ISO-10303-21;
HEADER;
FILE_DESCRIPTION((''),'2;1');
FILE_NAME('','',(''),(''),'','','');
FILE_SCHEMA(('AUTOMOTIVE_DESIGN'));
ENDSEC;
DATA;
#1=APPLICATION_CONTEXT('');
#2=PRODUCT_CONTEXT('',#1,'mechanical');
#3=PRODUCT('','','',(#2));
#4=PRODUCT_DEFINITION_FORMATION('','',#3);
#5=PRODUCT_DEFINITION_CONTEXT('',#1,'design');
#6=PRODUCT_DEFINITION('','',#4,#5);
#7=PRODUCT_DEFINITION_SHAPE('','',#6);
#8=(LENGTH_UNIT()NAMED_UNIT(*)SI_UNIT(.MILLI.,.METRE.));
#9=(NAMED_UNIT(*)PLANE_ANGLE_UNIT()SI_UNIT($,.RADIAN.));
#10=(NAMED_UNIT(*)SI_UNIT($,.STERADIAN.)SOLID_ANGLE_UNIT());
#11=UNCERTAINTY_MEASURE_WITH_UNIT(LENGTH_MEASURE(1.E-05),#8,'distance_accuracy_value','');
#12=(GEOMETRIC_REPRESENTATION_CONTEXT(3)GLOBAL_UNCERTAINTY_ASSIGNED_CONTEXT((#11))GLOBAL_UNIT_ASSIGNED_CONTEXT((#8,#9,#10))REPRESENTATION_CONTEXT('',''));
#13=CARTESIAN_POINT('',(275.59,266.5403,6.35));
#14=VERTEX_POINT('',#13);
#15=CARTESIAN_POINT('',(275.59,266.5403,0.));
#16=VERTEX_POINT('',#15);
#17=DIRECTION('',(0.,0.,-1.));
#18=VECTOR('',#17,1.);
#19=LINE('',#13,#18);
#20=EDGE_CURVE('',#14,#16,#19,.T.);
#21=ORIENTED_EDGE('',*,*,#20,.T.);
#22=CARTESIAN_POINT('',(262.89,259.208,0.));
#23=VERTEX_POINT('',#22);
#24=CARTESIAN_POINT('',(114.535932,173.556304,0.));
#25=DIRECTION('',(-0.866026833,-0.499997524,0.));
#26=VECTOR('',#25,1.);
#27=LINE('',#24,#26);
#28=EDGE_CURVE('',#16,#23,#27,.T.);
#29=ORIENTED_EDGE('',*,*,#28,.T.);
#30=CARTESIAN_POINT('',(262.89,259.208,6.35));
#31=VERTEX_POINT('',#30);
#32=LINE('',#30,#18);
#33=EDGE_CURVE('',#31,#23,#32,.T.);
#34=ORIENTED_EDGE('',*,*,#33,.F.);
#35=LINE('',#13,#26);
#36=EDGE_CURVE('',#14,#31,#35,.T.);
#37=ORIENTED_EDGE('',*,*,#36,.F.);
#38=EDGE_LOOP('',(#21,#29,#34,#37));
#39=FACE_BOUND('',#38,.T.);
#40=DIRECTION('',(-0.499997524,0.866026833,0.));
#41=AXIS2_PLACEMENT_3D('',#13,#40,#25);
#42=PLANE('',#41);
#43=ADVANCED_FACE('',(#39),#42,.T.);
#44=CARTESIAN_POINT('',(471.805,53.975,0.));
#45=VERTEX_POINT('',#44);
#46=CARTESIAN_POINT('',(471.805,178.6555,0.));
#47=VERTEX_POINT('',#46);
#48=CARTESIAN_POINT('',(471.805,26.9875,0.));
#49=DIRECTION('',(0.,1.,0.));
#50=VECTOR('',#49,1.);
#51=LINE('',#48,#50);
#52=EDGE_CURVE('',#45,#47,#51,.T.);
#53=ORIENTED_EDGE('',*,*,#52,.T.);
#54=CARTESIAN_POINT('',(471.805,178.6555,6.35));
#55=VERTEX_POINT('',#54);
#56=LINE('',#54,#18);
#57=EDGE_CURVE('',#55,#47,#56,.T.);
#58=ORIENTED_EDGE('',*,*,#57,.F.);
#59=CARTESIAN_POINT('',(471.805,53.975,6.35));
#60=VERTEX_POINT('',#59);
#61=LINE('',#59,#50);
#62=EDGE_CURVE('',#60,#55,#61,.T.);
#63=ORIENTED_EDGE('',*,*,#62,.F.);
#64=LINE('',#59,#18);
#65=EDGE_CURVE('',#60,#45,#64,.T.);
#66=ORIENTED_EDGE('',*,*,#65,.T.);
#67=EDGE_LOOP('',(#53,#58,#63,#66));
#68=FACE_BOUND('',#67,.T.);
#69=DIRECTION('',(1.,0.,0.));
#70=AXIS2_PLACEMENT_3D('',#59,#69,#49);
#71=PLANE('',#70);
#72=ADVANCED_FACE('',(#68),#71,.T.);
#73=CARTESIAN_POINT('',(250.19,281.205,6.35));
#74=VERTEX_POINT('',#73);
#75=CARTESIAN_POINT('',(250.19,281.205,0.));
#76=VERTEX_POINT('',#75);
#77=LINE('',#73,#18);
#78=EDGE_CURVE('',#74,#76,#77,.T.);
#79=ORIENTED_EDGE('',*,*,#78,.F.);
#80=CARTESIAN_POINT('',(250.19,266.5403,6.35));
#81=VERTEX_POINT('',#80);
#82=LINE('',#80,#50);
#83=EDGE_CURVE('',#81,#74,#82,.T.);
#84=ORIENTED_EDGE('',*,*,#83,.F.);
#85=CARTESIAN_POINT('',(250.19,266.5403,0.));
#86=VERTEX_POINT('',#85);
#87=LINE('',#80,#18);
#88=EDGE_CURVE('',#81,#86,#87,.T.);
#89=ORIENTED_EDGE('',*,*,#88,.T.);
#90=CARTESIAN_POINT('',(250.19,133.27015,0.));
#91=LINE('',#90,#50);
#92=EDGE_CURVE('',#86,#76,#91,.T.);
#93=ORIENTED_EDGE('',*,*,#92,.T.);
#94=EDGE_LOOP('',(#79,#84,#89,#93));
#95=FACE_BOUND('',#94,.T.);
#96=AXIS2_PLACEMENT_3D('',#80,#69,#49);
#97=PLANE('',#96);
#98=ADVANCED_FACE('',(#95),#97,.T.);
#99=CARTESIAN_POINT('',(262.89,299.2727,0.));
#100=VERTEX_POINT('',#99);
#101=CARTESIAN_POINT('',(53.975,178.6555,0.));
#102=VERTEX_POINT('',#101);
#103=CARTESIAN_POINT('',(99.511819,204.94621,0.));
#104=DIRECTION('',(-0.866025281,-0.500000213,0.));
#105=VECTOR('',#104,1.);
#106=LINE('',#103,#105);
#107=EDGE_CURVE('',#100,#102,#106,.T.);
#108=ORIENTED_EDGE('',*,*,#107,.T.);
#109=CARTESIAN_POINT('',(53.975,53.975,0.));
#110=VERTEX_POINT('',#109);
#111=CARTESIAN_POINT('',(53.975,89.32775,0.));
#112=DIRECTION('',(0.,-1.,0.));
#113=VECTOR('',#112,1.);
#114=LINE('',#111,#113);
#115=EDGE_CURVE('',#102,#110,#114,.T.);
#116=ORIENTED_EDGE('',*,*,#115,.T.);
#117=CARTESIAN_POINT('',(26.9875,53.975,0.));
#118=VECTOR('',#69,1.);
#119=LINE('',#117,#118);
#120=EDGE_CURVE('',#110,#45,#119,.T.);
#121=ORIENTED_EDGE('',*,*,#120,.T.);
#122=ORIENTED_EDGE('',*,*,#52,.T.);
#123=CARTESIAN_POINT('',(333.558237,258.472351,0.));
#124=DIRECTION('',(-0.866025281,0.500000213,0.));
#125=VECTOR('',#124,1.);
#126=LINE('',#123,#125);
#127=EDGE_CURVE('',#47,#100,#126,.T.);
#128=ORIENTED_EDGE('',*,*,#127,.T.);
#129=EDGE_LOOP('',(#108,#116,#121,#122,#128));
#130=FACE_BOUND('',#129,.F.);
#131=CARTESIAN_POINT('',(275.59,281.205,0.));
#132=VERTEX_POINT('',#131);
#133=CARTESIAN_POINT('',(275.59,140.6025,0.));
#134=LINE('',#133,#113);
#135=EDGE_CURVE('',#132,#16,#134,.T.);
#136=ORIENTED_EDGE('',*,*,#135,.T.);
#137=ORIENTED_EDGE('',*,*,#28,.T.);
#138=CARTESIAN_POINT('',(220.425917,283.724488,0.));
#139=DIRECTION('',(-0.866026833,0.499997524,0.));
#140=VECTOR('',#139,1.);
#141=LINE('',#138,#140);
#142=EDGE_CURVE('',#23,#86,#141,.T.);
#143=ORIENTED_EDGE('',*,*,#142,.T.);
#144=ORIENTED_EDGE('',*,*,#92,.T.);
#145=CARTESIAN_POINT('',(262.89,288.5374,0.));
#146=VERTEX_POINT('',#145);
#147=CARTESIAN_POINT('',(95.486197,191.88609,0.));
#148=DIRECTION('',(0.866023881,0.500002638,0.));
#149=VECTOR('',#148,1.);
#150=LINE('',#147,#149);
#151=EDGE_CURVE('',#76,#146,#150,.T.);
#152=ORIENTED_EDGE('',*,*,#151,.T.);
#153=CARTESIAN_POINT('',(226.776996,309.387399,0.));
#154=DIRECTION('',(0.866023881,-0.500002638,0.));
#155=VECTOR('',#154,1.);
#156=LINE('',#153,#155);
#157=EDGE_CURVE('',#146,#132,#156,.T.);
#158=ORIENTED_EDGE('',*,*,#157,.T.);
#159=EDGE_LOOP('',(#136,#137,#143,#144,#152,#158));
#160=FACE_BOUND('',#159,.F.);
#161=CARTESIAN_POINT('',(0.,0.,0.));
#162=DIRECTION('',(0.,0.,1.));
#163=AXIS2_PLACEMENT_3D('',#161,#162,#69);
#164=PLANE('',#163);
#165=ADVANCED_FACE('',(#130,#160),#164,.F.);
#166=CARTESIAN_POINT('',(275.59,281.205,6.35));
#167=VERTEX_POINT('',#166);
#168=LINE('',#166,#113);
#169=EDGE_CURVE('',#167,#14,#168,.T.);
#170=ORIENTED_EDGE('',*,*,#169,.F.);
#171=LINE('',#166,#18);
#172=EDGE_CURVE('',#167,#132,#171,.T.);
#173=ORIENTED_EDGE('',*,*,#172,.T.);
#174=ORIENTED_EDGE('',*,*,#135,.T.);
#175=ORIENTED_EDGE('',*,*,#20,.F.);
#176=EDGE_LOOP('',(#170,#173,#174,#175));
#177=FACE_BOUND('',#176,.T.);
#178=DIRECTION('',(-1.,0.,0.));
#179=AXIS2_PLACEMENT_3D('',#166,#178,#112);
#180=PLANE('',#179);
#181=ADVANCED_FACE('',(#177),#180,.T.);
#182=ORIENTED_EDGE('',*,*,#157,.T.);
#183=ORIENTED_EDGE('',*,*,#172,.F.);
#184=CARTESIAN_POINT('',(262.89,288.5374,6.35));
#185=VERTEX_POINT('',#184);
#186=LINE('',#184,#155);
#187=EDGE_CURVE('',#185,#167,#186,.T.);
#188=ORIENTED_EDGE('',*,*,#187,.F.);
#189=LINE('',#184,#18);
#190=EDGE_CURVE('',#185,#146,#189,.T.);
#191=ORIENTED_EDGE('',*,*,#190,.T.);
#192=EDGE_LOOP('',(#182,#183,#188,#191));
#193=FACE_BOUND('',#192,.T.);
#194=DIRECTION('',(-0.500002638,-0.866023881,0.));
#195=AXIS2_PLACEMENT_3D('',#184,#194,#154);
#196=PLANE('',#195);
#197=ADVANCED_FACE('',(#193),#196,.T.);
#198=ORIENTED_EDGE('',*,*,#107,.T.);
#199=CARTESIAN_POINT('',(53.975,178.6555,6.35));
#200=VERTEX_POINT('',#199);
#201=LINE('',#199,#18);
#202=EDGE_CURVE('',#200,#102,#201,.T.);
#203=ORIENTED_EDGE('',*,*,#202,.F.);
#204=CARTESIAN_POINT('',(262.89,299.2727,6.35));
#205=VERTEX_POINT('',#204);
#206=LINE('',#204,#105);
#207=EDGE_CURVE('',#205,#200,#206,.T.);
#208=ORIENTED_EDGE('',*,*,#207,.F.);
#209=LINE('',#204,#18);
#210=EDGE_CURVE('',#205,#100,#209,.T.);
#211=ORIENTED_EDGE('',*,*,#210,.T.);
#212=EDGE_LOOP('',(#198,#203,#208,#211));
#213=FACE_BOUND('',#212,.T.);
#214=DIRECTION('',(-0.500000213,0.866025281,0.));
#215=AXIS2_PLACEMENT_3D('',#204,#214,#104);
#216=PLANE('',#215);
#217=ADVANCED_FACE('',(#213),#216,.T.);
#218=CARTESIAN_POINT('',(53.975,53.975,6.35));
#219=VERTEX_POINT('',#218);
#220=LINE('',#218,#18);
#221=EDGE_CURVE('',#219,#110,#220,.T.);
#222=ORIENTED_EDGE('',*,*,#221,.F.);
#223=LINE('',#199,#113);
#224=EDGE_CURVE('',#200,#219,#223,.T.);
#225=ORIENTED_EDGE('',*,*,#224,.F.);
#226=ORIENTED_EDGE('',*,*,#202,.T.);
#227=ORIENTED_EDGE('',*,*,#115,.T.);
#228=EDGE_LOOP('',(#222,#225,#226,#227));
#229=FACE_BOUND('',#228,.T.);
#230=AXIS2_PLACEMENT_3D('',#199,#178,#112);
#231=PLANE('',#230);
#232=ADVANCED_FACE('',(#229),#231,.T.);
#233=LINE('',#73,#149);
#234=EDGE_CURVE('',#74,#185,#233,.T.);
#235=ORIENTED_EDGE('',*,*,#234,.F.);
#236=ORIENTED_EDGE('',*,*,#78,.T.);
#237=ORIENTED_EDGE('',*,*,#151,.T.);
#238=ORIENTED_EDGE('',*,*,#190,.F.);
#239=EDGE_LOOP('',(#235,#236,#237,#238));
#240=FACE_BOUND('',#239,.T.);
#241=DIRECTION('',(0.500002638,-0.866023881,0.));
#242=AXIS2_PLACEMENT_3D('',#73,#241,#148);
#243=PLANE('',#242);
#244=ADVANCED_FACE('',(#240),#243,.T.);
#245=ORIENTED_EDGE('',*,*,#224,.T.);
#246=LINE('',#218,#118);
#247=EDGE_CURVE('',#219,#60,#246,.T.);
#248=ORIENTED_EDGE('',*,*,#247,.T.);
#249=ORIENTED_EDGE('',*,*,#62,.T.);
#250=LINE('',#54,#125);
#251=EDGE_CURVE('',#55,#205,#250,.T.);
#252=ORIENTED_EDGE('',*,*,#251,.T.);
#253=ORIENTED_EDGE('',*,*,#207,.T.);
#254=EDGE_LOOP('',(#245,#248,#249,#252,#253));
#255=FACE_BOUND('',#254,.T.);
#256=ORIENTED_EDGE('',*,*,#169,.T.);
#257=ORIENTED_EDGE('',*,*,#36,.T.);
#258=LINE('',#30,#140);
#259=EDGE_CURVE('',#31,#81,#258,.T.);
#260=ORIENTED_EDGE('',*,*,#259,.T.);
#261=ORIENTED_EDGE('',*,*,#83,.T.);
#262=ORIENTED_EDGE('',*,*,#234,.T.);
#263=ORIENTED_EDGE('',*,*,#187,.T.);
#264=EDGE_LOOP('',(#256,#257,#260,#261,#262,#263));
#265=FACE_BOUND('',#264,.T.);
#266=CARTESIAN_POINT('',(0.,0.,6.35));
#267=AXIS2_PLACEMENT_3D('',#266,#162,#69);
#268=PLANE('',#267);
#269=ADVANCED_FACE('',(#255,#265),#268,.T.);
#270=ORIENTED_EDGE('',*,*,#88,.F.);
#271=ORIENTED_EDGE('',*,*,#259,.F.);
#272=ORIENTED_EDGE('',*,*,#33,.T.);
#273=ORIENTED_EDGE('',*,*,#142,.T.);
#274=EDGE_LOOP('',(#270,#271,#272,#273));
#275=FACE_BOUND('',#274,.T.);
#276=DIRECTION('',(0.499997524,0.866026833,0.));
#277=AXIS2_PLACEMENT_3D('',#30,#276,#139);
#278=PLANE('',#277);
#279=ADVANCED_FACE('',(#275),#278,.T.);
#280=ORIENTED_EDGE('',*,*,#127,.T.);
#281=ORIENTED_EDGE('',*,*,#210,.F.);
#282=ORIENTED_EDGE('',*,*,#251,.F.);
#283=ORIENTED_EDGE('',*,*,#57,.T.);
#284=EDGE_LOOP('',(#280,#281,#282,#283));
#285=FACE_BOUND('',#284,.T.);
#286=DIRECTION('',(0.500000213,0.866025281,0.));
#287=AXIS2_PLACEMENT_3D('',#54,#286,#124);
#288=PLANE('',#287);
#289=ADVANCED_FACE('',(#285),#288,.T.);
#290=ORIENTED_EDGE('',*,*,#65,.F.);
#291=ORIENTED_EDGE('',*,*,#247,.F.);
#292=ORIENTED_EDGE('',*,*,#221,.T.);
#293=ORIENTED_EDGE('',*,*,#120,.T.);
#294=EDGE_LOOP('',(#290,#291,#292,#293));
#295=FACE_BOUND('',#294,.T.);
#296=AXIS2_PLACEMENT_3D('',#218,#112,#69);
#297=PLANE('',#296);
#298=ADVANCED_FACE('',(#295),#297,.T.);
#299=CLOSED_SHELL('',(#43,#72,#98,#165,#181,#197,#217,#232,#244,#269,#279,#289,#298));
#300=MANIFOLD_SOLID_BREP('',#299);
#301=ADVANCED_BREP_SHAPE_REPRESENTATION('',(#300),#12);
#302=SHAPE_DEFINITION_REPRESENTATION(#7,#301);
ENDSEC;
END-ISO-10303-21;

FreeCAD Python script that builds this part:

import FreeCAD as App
import Part
import Sketcher

V = App.Vector
Q = App.Units.Quantity


def add_polygon(sketch, points):
    """Adds a closed chain of lines whose ends are joined by coincident constraints."""
    first, n = sketch.GeometryCount, len(points)
    for a, b in zip(points, points[1:] + points[:1]):
        sketch.addGeometry(Part.LineSegment(App.Vector(*a, 0), App.Vector(*b, 0)), False)
    for i in range(n):
        sketch.addConstraint(Sketcher.Constraint("Coincident", first + i, 2, first + (i + 1) % n, 1))

doc = App.newDocument("Part")
params = doc.addObject("Spreadsheet::Sheet", "Params")
for row, (alias, value) in enumerate([
    ("sketch1_width", "20.7 in"),
    ("pad1_length", "0.25 in"),
    ("sketch2_width", "20.7 in"),
    ("sketch3_width", "16.7 in"),
], start=1):
    params.set(f"A{row}", alias)
    params.set(f"B{row}", "=" + value)
    params.setAlias(f"B{row}", alias)

body = doc.addObject("PartDesign::Body", "Body")

# Sketch on XY plane
sketch1 = body.newObject("Sketcher::SketchObject", "Sketch")
sketch1.AttachmentSupport = (doc.getObject("XY_Plane"), [""])
sketch1.MapMode = "FlatFace"
add_polygon(sketch1, [(0, 202), (0, 0), (526, 0), (526, 202), (263, 354)])  # lines 0-4
sketch1.addConstraint(Sketcher.Constraint("Vertical", 0))
sketch1.addConstraint(Sketcher.Constraint("Horizontal", 1))
sketch1.addConstraint(Sketcher.Constraint("Vertical", 2))
sketch1.addConstraint(Sketcher.Constraint("Coincident", 0, 2, -1, 1))
sketch1.addConstraint(Sketcher.Constraint("Horizontal", 2, 2, 4, 2))
sketch1.addConstraint(Sketcher.Constraint("Equal", 3, 4))
sketch1.addConstraint(Sketcher.Constraint("DistanceX", 1, 1, 1, 2, Q("20.7 in")))
sketch1.addConstraint(Sketcher.Constraint("Angle", 3, Q("150 deg")))
sketch1.addConstraint(Sketcher.Constraint("DistanceY", 0, 2, 0, 1, 201.9592))
sketch1.setExpression("Constraints[11]", "Params.sketch1_width")
pad1 = body.newObject("PartDesign::Pad", "Pad")
pad1.Profile = sketch1
pad1.setExpression("Length", "Params.pad1_length")

# Sketch on XY plane
sketch2 = body.newObject("Sketcher::SketchObject", "Sketch001")
sketch2.AttachmentSupport = (doc.getObject("XY_Plane"), [""])
sketch2.MapMode = "FlatFace"
sketch2.AttachmentOffset = App.Placement(V(0, 0, 0.25 * 25.4), App.Rotation())
add_polygon(sketch2, [(263, 354), (0, 202), (0, 0), (526, 0), (526, 202)])  # lines 0-4
add_polygon(sketch2, [(51, 51), (51, 180), (263, 303), (475, 180), (475, 51)])  # lines 5-9
sketch2.addConstraint(Sketcher.Constraint("Vertical", 1))
sketch2.addConstraint(Sketcher.Constraint("Horizontal", 2))
sketch2.addConstraint(Sketcher.Constraint("Vertical", 3))
sketch2.addConstraint(Sketcher.Constraint("Vertical", 5))
sketch2.addConstraint(Sketcher.Constraint("Vertical", 8))
sketch2.addConstraint(Sketcher.Constraint("Horizontal", 9))
sketch2.addConstraint(Sketcher.Constraint("Coincident", 1, 2, -1, 1))
sketch2.addConstraint(Sketcher.Constraint("Parallel", 0, 6))
sketch2.addConstraint(Sketcher.Constraint("Parallel", 4, 7))
sketch2.addConstraint(Sketcher.Constraint("Horizontal", 0, 2, 3, 2))
sketch2.addConstraint(Sketcher.Constraint("Horizontal", 5, 2, 7, 2))
sketch2.addConstraint(Sketcher.Constraint("Vertical", 4, 2, 6, 2))
sketch2.addConstraint(Sketcher.Constraint("Equal", 0, 4))
sketch2.addConstraint(Sketcher.Constraint("DistanceX", -1, 1, 5, 2, Q("2 in")))
sketch2.addConstraint(Sketcher.Constraint("DistanceY", -1, 1, 8, 2, Q("2 in")))
sketch2.addConstraint(Sketcher.Constraint("DistanceY", 6, 2, 4, 2, Q("2 in")))
sketch2.addConstraint(Sketcher.Constraint("DistanceX", 2, 1, 2, 2, Q("20.7 in")))
sketch2.addConstraint(Sketcher.Constraint("Angle", 0, Q("-150 deg")))
sketch2.addConstraint(Sketcher.Constraint("DistanceY", 1, 2, 1, 1, 201.9592))
sketch2.setExpression("Constraints[26]", "Params.sketch2_width")
pocket1 = body.newObject("PartDesign::Pocket", "Pocket")
pocket1.Profile = sketch2
pocket1.Type = "ThroughAll"

# Sketch on XY plane
sketch3 = body.newObject("Sketcher::SketchObject", "Sketch002")
sketch3.AttachmentSupport = (doc.getObject("XY_Plane"), [""])
sketch3.MapMode = "FlatFace"
sketch3.AttachmentOffset = App.Placement(V(0, 0, 0.25 * 25.4), App.Rotation())
add_polygon(sketch3, [(51, 180), (51, 51), (475, 51), (475, 180), (263, 303)])  # lines 0-4
add_polygon(sketch3, [(54, 54), (54, 179), (263, 299), (472, 179), (472, 54)])  # lines 5-9
sketch3.addConstraint(Sketcher.Constraint("Vertical", 0))
sketch3.addConstraint(Sketcher.Constraint("Horizontal", 1))
sketch3.addConstraint(Sketcher.Constraint("Vertical", 2))
sketch3.addConstraint(Sketcher.Constraint("Vertical", 5))
sketch3.addConstraint(Sketcher.Constraint("Vertical", 8))
sketch3.addConstraint(Sketcher.Constraint("Horizontal", 9))
sketch3.addConstraint(Sketcher.Constraint("Parallel", 4, 6))
sketch3.addConstraint(Sketcher.Constraint("Parallel", 3, 7))
sketch3.addConstraint(Sketcher.Constraint("Horizontal", 2, 2, 4, 2))
sketch3.addConstraint(Sketcher.Constraint("Horizontal", 5, 2, 7, 2))
sketch3.addConstraint(Sketcher.Constraint("Vertical", 3, 2, 6, 2))
sketch3.addConstraint(Sketcher.Constraint("Equal", 3, 4))
sketch3.addConstraint(Sketcher.Constraint("DistanceX", 1, 1, 1, 2, Q("16.7 in")))
sketch3.addConstraint(Sketcher.Constraint("DistanceX", -1, 1, 0, 2, Q("2 in")))
sketch3.addConstraint(Sketcher.Constraint("DistanceY", -1, 1, 0, 2, Q("2 in")))
sketch3.addConstraint(Sketcher.Constraint("Angle", 3, Q("150 deg")))
sketch3.addConstraint(Sketcher.Constraint("DistanceX", 4, 2, 5, 2, Q("0.125 in")))
sketch3.addConstraint(Sketcher.Constraint("DistanceY", 1, 2, 8, 2, Q("0.125 in")))
sketch3.addConstraint(Sketcher.Constraint("DistanceY", 0, 2, 0, 1, 129.6886))
sketch3.addConstraint(Sketcher.Constraint("DistanceY", 5, 1, 5, 2, 124.6805))
sketch3.setExpression("Constraints[22]", "Params.sketch3_width")
pocket2 = body.newObject("PartDesign::Pocket", "Pocket001")
pocket2.Profile = sketch3
pocket2.Type = "ThroughAll"

# Sketch on XY plane
sketch4 = body.newObject("Sketcher::SketchObject", "Sketch003")
sketch4.AttachmentSupport = (doc.getObject("XY_Plane"), [""])
sketch4.MapMode = "FlatFace"
sketch4.AttachmentOffset = App.Placement(V(0, 0, 0.25 * 25.4), App.Rotation())
add_polygon(sketch4, [(276, 281), (263, 289), (250, 281), (250, 267), (263, 259), (276, 267)])  # lines 0-5
sketch4.addConstraint(Sketcher.Constraint("Vertical", 2))
sketch4.addConstraint(Sketcher.Constraint("Vertical", 5))
sketch4.addConstraint(Sketcher.Constraint("Parallel", 0, 3))
sketch4.addConstraint(Sketcher.Constraint("Parallel", 1, 4))
sketch4.addConstraint(Sketcher.Constraint("Horizontal", 2, 2, 4, 2))
sketch4.addConstraint(Sketcher.Constraint("Horizontal", 1, 2, 5, 2))
sketch4.addConstraint(Sketcher.Constraint("Vertical", 0, 2, 3, 2))
sketch4.addConstraint(Sketcher.Constraint("DistanceX", 2, 2, 4, 2, Q("1 in")))
sketch4.addConstraint(Sketcher.Constraint("Angle", 0, Q("149.9998 deg")))
sketch4.addConstraint(Sketcher.Constraint("DistanceX", -1, 1, 0, 2, Q("10.35 in")))
sketch4.addConstraint(Sketcher.Constraint("DistanceY", 2, 2, 2, 1, 14.6647))
sketch4.addConstraint(Sketcher.Constraint("DistanceY", -1, 1, 0, 2, 288.5374))
pocket3 = body.newObject("PartDesign::Pocket", "Pocket002")
pocket3.Profile = sketch4
pocket3.Type = "ThroughAll"

doc.recompute()
